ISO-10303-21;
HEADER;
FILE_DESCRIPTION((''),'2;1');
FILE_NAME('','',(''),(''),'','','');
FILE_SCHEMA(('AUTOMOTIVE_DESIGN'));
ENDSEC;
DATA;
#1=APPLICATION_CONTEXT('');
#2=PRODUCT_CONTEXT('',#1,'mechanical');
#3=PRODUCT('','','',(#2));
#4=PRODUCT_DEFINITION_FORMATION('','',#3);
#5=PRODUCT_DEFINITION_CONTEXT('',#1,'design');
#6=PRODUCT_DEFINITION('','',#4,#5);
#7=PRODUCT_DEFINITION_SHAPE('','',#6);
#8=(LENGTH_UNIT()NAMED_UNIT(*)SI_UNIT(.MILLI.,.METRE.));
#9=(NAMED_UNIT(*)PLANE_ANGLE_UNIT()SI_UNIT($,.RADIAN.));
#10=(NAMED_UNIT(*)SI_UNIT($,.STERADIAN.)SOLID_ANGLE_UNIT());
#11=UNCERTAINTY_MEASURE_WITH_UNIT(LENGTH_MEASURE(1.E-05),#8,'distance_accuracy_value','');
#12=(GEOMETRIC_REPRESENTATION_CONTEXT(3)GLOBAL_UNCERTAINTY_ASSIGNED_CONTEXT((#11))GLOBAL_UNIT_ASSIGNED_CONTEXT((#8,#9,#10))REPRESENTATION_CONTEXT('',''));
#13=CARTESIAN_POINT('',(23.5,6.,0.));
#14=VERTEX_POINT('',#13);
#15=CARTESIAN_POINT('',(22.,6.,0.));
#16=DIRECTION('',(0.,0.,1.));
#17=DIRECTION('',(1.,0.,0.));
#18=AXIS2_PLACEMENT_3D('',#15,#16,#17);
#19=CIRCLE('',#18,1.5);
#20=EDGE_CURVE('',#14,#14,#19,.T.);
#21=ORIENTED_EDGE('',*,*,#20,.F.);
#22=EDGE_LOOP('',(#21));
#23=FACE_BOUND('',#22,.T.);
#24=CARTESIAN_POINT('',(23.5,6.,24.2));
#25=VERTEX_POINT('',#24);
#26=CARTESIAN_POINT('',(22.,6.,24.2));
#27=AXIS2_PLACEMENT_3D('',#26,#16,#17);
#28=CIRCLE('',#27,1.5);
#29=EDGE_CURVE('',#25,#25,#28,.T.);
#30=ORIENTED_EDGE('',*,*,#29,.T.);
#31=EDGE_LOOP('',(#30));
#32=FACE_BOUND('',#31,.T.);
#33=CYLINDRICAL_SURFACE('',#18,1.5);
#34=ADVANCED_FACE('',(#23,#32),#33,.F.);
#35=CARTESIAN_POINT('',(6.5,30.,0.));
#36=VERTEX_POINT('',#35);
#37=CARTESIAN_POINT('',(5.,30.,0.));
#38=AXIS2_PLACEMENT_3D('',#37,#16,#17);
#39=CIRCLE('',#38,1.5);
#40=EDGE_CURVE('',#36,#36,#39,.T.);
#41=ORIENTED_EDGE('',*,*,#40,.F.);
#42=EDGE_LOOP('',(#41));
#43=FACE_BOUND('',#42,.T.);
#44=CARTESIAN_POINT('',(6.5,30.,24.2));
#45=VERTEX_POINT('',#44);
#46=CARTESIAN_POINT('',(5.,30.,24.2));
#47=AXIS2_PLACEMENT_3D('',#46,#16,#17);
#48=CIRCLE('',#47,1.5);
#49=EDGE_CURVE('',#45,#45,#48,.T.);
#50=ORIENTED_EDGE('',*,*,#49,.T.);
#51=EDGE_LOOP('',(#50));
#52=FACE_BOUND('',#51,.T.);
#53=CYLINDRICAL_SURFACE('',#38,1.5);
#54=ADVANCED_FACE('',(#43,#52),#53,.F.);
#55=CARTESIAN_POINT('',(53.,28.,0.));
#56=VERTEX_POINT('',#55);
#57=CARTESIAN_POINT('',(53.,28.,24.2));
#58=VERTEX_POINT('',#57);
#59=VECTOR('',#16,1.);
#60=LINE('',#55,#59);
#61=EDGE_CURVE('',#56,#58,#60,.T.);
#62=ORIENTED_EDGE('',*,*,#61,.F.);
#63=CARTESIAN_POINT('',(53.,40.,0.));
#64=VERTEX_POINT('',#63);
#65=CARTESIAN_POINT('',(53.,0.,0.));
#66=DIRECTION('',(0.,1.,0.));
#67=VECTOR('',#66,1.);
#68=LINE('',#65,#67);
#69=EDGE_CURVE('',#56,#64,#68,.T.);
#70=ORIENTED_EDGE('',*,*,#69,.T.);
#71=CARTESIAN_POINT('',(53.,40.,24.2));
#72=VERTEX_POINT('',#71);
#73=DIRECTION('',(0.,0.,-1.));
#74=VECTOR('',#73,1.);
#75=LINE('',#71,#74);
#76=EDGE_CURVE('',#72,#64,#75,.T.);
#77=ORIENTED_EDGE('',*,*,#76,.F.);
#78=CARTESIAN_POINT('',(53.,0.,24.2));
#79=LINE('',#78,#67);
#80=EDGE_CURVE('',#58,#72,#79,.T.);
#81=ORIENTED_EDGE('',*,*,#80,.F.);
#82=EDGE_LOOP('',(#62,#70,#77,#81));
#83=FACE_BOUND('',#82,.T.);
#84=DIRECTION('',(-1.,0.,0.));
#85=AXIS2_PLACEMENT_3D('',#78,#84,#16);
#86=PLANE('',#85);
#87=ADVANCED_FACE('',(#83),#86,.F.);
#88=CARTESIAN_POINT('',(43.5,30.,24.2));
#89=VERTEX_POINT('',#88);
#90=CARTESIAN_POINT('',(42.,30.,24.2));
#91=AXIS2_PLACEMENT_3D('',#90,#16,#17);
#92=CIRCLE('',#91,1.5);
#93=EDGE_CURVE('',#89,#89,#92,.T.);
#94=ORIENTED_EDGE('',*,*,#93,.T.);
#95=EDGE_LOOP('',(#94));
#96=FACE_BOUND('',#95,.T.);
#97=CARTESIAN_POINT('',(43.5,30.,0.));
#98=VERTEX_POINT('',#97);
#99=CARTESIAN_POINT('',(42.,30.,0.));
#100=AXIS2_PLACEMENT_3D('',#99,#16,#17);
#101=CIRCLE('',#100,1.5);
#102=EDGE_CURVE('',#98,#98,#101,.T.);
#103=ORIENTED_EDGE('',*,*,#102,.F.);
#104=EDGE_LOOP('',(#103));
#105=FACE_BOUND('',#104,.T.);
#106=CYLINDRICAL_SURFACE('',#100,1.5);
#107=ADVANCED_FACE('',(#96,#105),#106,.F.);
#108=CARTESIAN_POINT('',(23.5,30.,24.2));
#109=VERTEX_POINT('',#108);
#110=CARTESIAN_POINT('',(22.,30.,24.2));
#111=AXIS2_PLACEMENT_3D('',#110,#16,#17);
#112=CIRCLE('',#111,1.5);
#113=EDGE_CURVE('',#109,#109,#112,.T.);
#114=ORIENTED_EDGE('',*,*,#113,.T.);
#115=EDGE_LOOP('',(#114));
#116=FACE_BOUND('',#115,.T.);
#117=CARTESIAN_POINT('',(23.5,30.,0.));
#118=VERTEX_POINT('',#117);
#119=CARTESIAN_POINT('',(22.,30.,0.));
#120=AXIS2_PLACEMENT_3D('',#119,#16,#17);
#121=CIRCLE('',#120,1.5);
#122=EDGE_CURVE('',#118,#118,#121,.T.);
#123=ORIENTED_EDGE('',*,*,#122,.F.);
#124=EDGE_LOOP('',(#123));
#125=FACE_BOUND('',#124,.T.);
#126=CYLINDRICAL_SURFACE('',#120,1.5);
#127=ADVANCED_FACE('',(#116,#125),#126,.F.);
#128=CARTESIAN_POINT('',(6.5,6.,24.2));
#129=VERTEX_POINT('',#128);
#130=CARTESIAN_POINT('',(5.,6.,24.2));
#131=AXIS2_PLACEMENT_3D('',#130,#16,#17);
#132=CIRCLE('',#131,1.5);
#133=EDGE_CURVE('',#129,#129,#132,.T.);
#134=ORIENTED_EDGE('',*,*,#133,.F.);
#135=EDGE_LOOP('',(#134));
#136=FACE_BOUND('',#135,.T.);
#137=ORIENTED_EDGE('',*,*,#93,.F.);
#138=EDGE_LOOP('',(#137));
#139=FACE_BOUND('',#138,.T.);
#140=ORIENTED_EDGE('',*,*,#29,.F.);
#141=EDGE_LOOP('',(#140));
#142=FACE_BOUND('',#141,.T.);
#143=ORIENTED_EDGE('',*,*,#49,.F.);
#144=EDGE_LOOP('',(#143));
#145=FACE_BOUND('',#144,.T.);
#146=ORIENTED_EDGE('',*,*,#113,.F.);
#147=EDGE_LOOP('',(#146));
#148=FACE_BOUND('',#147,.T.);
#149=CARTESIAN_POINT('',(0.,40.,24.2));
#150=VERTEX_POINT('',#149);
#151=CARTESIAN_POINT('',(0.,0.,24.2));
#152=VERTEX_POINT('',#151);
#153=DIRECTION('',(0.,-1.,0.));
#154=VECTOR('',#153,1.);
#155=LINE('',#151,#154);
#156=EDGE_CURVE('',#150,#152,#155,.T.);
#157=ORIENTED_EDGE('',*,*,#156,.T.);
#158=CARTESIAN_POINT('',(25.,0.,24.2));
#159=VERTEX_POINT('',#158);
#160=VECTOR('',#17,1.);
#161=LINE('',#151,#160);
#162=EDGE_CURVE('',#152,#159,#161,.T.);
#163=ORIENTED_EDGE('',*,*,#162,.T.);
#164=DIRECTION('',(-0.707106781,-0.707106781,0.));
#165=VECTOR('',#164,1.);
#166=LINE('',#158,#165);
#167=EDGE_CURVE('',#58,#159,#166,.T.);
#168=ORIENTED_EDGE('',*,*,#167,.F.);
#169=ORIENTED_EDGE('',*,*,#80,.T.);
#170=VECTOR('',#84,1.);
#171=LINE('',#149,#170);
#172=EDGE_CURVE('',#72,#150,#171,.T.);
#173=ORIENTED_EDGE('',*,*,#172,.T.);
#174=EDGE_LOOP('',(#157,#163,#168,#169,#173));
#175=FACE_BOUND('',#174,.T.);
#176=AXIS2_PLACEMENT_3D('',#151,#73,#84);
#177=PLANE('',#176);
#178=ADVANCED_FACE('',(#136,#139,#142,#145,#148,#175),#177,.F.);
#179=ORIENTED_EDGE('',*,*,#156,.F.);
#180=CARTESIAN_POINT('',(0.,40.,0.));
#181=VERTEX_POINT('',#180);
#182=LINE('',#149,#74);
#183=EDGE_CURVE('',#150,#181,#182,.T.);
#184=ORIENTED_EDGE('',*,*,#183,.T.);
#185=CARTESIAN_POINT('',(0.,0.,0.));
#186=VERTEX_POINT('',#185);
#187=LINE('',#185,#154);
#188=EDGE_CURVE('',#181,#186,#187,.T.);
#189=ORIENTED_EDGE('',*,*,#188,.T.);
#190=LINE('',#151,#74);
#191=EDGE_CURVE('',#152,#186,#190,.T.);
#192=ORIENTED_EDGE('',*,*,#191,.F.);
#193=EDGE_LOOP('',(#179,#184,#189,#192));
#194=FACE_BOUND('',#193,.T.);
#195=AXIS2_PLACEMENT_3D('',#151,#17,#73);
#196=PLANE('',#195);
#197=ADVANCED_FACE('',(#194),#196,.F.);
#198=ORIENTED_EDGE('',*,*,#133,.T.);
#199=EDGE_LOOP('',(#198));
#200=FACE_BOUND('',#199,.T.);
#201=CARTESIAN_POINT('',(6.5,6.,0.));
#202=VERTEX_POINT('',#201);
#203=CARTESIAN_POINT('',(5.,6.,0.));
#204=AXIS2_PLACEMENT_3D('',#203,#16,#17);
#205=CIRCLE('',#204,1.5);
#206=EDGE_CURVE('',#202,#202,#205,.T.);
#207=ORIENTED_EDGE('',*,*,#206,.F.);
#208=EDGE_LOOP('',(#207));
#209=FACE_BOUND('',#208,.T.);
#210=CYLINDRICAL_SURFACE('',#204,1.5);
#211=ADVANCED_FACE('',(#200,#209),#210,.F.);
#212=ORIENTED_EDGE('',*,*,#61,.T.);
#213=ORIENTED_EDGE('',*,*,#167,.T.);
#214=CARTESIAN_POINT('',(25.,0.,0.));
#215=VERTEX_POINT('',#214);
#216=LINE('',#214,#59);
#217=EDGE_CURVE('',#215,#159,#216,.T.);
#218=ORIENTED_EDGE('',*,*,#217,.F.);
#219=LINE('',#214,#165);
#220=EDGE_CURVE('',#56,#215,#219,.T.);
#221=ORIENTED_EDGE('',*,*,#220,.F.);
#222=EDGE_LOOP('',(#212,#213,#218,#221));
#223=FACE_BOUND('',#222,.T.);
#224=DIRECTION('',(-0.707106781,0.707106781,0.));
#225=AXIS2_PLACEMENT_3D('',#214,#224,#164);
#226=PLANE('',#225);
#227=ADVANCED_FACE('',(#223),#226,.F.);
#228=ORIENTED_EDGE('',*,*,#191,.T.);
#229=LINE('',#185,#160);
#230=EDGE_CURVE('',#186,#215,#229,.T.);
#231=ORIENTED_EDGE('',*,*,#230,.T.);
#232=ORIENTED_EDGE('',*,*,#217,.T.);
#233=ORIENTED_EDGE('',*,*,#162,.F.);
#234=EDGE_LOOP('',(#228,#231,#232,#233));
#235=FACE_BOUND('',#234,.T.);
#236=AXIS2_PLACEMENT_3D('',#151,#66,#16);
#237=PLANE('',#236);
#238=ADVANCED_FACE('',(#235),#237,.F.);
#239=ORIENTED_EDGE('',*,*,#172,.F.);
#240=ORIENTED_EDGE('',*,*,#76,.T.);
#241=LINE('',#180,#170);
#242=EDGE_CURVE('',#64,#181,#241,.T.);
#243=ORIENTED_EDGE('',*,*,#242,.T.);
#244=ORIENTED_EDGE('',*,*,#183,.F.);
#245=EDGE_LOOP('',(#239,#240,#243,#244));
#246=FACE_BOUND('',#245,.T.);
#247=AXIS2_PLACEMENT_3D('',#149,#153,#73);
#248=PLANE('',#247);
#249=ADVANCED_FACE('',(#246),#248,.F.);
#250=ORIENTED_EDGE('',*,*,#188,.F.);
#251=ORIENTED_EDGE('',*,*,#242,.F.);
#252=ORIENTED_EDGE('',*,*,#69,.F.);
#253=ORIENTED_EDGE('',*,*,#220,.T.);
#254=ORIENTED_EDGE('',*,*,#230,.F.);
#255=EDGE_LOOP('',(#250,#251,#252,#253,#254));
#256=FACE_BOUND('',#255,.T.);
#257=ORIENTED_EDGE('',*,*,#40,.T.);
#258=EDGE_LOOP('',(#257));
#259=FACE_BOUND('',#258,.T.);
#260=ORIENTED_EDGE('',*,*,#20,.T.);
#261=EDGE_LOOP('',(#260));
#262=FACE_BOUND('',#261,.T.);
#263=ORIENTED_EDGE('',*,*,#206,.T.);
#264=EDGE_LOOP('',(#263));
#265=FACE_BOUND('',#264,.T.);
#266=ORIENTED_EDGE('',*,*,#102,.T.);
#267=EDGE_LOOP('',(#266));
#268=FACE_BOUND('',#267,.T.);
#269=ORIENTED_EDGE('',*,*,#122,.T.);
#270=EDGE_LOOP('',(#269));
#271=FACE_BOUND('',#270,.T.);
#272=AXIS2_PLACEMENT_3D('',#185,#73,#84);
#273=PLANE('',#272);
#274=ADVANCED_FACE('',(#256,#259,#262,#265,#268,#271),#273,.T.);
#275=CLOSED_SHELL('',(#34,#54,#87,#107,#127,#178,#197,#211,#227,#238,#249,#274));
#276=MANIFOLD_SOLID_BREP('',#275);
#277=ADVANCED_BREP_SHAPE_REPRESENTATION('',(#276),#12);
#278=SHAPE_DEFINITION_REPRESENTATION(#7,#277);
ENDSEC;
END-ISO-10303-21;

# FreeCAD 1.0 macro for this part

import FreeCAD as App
import Part
import Sketcher
from FreeCAD import Vector

doc = App.newDocument("Part")
body = doc.addObject("PartDesign::Body", "Body")

# Sketch on XY plane
sketch1 = doc.addObject("Sketcher::SketchObject", "Sketch")
body.addObject(sketch1)
sketch1.AttachmentSupport = (doc.XY_Plane, [""])
sketch1.MapMode = "FlatFace"
sketch1.addGeometry(Part.LineSegment(Vector(0, 40, 0), Vector(0, 0, 0)), False)
sketch1.addGeometry(Part.LineSegment(Vector(0, 0, 0), Vector(53, 0, 0)), False)
sketch1.addGeometry(Part.LineSegment(Vector(53, 0, 0), Vector(53, 40, 0)), False)
sketch1.addGeometry(Part.LineSegment(Vector(53, 40, 0), Vector(0, 40, 0)), False)
sketch1.addConstraint(Sketcher.Constraint("Coincident", 0, 2, 1, 1))
sketch1.addConstraint(Sketcher.Constraint("Coincident", 1, 2, 2, 1))
sketch1.addConstraint(Sketcher.Constraint("Coincident", 2, 2, 3, 1))
sketch1.addConstraint(Sketcher.Constraint("Coincident", 3, 2, 0, 1))
sketch1.addConstraint(Sketcher.Constraint("Vertical", 0))
sketch1.addConstraint(Sketcher.Constraint("Horizontal", 1))
sketch1.addConstraint(Sketcher.Constraint("Vertical", 2))
sketch1.addConstraint(Sketcher.Constraint("Horizontal", 3))
sketch1.addConstraint(Sketcher.Constraint("Coincident", 0, 2, -1, 1))
sketch1.addConstraint(Sketcher.Constraint("DistanceX", 1, 1, 1, 2, 53.0))
sketch1.addConstraint(Sketcher.Constraint("DistanceY", 0, 2, 0, 1, 40.0))
pad1 = doc.addObject("PartDesign::Pad", "Pad")
body.addObject(pad1)
pad1.Profile = sketch1
pad1.Length = 24.2

# Sketch on XY plane
sketch2 = doc.addObject("Sketcher::SketchObject", "Sketch001")
body.addObject(sketch2)
sketch2.AttachmentSupport = (doc.XY_Plane, [""])
sketch2.MapMode = "FlatFace"
sketch2.AttachmentOffset = App.Placement(Vector(0, 0, 24.2), App.Rotation())
sketch2.addGeometry(Part.LineSegment(Vector(53, 0, 0), Vector(53, 28, 0)), False)
sketch2.addGeometry(Part.LineSegment(Vector(53, 28, 0), Vector(25, 0, 0)), False)
sketch2.addGeometry(Part.LineSegment(Vector(25, 0, 0), Vector(53, 0, 0)), False)
sketch2.addConstraint(Sketcher.Constraint("Coincident", 0, 2, 1, 1))
sketch2.addConstraint(Sketcher.Constraint("Coincident", 1, 2, 2, 1))
sketch2.addConstraint(Sketcher.Constraint("Coincident", 2, 2, 0, 1))
sketch2.addConstraint(Sketcher.Constraint("Vertical", 0))
sketch2.addConstraint(Sketcher.Constraint("Horizontal", 2))
sketch2.addConstraint(Sketcher.Constraint("PointOnObject", 1, 2, -1))
sketch2.addConstraint(Sketcher.Constraint("Equal", 2, 0))
sketch2.addConstraint(Sketcher.Constraint("DistanceX", 2, 1, 2, 2, 28.0))
sketch2.addConstraint(Sketcher.Constraint("DistanceX", -1, 1, 0, 2, 53.0))
pocket1 = doc.addObject("PartDesign::Pocket", "Pocket")
body.addObject(pocket1)
pocket1.Profile = sketch2
pocket1.Type = "ThroughAll"

# Sketch on XY plane
sketch3 = doc.addObject("Sketcher::SketchObject", "Sketch002")
body.addObject(sketch3)
sketch3.AttachmentSupport = (doc.XY_Plane, [""])
sketch3.MapMode = "FlatFace"
sketch3.AttachmentOffset = App.Placement(Vector(0, 0, 24.2), App.Rotation())
sketch3.addGeometry(Part.Circle(Vector(5, 30, 0), Vector(0, 0, 1), 1.5), False)
sketch3.addGeometry(Part.Circle(Vector(5, 6, 0), Vector(0, 0, 1), 1.5), False)
sketch3.addGeometry(Part.Circle(Vector(22, 30, 0), Vector(0, 0, 1), 1.5), False)
sketch3.addGeometry(Part.Circle(Vector(22, 6, 0), Vector(0, 0, 1), 1.5), False)
sketch3.addGeometry(Part.Circle(Vector(42, 30, 0), Vector(0, 0, 1), 1.5), False)
sketch3.addConstraint(Sketcher.Constraint("Equal", 0, 1))
sketch3.addConstraint(Sketcher.Constraint("Equal", 1, 2))
sketch3.addConstraint(Sketcher.Constraint("Equal", 2, 3))
sketch3.addConstraint(Sketcher.Constraint("Equal", 3, 4))
sketch3.addConstraint(Sketcher.Constraint("Horizontal", 0, 3, 2, 3))
sketch3.addConstraint(Sketcher.Constraint("Horizontal", 1, 3, 3, 3))
sketch3.addConstraint(Sketcher.Constraint("Horizontal", 2, 3, 4, 3))
sketch3.addConstraint(Sketcher.Constraint("Vertical", 0, 3, 1, 3))
sketch3.addConstraint(Sketcher.Constraint("Vertical", 2, 3, 3, 3))
sketch3.addConstraint(Sketcher.Constraint("Diameter", 0, 3.0))
sketch3.addConstraint(Sketcher.Constraint("DistanceX", -1, 1, 0, 3, 5.0))
sketch3.addConstraint(Sketcher.Constraint("DistanceY", -1, 1, 0, 3, 30.0))
sketch3.addConstraint(Sketcher.Constraint("DistanceY", -1, 1, 1, 3, 6.0))
sketch3.addConstraint(Sketcher.Constraint("DistanceX", -1, 1, 2, 3, 22.0))
sketch3.addConstraint(Sketcher.Constraint("DistanceX", -1, 1, 4, 3, 42.0))
pocket2 = doc.addObject("PartDesign::Pocket", "Pocket001")
body.addObject(pocket2)
pocket2.Profile = sketch3
pocket2.Type = "ThroughAll"

doc.recompute()
